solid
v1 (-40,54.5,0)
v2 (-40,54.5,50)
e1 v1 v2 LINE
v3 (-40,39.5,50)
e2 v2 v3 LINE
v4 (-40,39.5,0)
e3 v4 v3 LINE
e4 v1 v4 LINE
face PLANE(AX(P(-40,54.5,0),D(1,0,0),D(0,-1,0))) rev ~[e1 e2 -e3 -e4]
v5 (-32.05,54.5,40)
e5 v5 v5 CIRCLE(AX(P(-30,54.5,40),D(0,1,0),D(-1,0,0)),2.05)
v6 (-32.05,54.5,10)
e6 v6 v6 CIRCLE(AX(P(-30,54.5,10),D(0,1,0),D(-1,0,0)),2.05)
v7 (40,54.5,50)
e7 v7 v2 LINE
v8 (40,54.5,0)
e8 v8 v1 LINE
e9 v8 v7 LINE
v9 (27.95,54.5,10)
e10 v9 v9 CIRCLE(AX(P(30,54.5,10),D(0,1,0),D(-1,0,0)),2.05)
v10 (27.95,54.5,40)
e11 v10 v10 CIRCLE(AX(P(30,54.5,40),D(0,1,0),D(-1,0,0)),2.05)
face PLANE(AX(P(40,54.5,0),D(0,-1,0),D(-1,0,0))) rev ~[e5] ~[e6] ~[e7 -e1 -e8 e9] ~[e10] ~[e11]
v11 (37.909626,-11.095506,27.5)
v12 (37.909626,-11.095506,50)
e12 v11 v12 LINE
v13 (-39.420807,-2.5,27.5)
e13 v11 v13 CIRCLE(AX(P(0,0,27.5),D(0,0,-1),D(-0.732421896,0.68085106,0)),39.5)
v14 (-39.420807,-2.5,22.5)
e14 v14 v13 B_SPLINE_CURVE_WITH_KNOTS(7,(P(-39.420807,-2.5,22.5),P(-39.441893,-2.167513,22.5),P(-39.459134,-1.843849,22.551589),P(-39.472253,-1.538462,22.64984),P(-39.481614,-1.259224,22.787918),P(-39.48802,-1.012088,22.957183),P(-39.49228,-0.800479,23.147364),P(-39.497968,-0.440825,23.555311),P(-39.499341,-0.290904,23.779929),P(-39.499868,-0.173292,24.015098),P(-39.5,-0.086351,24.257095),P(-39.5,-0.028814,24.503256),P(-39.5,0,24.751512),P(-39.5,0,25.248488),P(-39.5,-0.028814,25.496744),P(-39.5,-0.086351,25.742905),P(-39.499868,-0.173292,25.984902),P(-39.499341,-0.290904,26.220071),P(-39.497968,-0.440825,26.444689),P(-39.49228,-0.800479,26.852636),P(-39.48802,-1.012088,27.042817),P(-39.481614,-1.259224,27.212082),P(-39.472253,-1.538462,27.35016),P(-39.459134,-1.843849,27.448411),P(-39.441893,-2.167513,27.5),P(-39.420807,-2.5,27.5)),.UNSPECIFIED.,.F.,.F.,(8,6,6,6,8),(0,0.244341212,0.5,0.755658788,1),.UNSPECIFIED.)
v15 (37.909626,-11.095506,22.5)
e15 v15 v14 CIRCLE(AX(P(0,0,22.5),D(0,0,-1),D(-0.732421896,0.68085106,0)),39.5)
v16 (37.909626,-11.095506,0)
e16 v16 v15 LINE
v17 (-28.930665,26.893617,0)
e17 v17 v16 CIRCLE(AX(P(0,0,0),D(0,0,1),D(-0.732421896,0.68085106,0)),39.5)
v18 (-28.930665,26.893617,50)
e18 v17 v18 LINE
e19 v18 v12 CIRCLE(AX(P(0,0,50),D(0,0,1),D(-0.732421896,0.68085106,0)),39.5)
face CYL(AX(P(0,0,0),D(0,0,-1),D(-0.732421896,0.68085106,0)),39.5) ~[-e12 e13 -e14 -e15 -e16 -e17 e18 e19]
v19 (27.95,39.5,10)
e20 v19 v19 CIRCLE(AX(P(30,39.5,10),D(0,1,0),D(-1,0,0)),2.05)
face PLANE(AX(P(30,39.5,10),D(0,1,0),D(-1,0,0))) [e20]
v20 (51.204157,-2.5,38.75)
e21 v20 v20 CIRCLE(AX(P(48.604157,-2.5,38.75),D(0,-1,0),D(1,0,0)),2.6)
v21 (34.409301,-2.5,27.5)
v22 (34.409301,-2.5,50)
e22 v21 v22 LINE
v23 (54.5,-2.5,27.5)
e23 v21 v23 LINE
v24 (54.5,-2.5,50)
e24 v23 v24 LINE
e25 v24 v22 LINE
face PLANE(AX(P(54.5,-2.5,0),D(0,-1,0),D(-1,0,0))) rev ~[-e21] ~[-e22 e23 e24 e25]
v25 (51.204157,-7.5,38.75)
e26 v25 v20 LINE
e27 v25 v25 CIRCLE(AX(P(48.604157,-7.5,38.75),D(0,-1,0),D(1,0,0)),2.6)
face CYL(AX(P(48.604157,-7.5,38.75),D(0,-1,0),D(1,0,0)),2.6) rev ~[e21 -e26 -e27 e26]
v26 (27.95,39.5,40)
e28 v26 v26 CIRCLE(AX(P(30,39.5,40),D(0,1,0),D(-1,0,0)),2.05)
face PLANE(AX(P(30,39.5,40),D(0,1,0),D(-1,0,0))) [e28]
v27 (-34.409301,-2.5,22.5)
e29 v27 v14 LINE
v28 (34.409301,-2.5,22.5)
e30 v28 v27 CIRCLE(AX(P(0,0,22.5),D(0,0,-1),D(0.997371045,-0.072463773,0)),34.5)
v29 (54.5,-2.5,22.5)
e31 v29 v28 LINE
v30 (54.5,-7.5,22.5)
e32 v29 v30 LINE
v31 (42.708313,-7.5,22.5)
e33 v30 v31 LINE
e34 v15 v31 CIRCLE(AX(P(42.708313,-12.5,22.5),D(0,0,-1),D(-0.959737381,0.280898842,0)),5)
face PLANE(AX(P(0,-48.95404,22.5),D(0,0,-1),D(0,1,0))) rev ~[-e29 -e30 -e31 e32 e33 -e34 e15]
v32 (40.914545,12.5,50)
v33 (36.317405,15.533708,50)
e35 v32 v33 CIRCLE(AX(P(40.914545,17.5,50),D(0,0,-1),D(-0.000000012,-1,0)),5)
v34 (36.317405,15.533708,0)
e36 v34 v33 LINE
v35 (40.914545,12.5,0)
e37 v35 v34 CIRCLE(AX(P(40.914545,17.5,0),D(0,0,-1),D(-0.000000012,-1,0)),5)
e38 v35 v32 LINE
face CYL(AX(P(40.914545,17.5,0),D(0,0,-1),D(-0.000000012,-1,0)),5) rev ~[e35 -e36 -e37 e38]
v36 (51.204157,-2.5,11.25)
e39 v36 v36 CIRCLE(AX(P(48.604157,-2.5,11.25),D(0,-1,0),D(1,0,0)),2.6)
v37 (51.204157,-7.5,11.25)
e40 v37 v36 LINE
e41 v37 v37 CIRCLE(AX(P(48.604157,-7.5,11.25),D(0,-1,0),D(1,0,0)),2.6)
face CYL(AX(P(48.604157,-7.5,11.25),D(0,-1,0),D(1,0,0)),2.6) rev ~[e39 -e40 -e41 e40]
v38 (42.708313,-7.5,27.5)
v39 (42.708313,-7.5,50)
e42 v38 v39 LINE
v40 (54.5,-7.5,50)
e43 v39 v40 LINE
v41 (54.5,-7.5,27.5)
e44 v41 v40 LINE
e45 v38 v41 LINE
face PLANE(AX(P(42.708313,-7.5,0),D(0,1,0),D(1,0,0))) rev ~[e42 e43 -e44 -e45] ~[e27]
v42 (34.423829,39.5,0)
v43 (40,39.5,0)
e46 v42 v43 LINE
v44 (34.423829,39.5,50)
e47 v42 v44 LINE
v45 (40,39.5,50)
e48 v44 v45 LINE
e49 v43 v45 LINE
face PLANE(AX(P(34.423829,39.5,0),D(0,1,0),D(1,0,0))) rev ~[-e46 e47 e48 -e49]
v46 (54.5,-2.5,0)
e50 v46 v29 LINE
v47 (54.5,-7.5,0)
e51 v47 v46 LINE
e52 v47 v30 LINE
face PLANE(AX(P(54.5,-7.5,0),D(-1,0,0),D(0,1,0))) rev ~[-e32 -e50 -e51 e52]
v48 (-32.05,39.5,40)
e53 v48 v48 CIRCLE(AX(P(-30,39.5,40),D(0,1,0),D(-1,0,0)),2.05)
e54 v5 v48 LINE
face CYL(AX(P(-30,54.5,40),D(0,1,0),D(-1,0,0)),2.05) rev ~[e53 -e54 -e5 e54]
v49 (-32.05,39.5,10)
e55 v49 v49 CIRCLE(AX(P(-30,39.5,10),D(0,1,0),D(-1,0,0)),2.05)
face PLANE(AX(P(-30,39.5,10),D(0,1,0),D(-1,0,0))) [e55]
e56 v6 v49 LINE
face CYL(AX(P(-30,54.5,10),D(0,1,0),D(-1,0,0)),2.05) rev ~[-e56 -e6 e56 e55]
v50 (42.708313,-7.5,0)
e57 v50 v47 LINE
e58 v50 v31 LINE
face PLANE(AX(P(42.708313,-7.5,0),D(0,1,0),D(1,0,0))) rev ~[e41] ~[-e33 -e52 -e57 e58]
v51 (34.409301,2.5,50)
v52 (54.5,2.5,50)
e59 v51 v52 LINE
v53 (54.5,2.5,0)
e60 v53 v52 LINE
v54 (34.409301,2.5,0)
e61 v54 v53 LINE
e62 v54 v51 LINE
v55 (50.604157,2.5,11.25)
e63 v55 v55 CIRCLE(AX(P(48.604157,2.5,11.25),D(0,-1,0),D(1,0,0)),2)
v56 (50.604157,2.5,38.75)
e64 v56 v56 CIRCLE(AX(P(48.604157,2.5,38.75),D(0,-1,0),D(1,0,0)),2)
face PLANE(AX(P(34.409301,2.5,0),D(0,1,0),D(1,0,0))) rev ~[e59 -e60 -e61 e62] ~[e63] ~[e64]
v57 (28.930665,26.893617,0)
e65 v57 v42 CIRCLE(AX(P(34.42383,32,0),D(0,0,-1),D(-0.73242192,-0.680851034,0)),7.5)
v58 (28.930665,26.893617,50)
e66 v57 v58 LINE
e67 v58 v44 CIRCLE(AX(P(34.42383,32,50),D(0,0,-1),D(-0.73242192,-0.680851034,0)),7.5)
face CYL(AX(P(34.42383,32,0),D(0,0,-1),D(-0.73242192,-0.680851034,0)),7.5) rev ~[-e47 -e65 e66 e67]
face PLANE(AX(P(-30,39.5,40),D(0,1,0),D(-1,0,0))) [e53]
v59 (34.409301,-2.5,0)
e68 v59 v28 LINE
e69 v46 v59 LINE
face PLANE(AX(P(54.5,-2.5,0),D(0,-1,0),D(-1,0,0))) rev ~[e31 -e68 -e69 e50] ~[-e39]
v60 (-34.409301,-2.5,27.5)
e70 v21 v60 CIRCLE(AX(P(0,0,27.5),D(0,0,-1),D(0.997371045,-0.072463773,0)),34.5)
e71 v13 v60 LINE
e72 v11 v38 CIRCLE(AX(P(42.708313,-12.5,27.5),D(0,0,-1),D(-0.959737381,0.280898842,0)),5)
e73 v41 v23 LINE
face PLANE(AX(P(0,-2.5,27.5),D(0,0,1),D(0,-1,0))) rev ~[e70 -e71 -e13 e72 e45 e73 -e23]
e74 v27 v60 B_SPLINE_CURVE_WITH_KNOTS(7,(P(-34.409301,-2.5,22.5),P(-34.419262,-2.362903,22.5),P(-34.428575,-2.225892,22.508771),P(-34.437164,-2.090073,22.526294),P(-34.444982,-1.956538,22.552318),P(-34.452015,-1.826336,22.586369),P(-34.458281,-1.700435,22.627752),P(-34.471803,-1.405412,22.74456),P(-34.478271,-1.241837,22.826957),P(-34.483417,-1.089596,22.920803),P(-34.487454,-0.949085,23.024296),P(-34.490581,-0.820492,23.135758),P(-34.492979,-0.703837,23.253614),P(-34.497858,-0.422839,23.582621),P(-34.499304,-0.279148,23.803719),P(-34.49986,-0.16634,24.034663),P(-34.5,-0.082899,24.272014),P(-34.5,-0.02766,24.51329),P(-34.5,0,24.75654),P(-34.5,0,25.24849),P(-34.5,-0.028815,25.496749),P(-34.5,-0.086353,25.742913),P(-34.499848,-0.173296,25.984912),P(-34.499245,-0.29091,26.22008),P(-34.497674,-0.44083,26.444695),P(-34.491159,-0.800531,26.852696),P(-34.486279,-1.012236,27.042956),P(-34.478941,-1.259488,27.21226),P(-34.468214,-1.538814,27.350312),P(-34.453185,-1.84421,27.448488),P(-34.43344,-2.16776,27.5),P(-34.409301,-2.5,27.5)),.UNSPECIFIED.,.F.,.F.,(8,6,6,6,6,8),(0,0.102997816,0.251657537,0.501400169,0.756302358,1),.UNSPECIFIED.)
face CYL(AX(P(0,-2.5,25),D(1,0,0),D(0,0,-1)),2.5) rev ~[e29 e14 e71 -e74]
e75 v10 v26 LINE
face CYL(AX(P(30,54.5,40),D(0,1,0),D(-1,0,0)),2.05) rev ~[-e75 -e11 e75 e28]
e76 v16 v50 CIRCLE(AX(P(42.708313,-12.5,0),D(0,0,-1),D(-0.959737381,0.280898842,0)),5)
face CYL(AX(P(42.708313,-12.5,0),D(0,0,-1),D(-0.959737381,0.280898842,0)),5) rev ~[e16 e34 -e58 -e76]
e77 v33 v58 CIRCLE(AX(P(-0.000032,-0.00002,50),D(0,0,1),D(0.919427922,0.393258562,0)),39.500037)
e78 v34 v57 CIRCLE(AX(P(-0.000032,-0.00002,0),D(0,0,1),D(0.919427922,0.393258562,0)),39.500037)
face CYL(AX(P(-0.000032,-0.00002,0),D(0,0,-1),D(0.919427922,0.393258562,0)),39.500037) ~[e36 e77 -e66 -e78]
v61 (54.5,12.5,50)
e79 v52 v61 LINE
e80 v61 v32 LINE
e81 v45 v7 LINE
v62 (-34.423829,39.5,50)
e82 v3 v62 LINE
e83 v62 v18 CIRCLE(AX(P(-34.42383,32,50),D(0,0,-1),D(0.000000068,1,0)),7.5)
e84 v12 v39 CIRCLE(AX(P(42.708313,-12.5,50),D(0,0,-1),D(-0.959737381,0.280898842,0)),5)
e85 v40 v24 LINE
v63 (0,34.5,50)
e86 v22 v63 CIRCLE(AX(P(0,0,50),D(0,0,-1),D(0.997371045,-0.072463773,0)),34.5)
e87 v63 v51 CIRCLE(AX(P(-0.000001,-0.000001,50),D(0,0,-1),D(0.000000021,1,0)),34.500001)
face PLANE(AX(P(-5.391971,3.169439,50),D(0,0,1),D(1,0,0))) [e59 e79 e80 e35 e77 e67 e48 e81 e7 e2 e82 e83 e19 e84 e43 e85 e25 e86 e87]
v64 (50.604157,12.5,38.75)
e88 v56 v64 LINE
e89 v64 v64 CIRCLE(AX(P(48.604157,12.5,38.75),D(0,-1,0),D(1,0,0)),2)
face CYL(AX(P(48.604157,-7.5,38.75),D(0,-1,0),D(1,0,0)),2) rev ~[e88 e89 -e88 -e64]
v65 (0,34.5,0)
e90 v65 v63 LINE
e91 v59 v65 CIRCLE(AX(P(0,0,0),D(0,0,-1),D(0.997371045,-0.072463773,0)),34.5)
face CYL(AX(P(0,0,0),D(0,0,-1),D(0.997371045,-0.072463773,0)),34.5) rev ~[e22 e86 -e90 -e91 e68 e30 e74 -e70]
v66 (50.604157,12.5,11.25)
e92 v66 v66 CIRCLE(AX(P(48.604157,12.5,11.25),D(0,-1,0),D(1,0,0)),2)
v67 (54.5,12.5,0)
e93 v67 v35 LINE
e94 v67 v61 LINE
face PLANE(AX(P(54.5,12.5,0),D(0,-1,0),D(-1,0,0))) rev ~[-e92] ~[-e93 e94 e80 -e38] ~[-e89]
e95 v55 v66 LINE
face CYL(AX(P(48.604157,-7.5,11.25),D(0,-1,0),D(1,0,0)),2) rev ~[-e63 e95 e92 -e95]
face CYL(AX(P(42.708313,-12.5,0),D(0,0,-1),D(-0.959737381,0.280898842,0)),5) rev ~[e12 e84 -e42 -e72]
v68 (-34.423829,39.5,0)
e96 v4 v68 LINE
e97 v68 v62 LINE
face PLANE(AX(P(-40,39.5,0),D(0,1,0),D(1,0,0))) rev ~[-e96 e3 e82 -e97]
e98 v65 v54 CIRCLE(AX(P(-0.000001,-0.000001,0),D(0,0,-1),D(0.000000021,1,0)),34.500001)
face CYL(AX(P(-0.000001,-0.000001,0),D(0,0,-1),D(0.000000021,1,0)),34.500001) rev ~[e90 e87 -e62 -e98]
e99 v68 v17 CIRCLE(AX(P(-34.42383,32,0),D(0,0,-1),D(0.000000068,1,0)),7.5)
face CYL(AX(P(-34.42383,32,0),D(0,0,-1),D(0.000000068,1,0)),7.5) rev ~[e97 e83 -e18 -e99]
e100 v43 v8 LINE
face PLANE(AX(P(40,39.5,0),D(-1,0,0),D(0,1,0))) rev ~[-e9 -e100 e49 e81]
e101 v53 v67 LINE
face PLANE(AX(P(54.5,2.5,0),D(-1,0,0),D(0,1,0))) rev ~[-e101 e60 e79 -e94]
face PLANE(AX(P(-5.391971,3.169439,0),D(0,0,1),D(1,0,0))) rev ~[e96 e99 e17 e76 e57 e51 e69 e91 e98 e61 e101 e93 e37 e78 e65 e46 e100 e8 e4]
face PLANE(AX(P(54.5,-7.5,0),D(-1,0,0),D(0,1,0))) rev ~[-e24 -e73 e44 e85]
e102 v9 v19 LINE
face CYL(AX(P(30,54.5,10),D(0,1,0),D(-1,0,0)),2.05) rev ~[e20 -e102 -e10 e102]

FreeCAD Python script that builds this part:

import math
import FreeCAD as App
import Part
import Sketcher
Q = App.Units.Quantity

doc = App.newDocument("Part")
body = doc.addObject("PartDesign::Body", "Body")

# Sketch on XY plane
sketch1 = body.newObject("Sketcher::SketchObject", "Sketch")
sketch1.AttachmentSupport = (doc.getObject("XY_Plane"), [""])
sketch1.MapMode = "FlatFace"
sketch1.addGeometry(Part.ArcOfCircle(Part.Circle(App.Vector(0, 0, 0), App.Vector(0, 0, 1), 34), math.radians(90), math.radians(356)), False)
sketch1.addGeometry(Part.ArcOfCircle(Part.Circle(App.Vector(0, 0, 0), App.Vector(0, 0, 1), 35), math.radians(4), math.radians(90)), False)
sketch1.addGeometry(Part.LineSegment(App.Vector(34, 2, 0), App.Vector(54, 2, 0)), False)
sketch1.addGeometry(Part.LineSegment(App.Vector(54, 2, 0), App.Vector(54, 12, 0)), False)
sketch1.addGeometry(Part.LineSegment(App.Vector(54, 12, 0), App.Vector(41, 12, 0)), False)
sketch1.addGeometry(Part.ArcOfCircle(Part.Circle(App.Vector(41, 18, 0), App.Vector(0, 0, 1), 5), math.radians(-157), math.radians(-90)), False)
sketch1.addGeometry(Part.ArcOfCircle(Part.Circle(App.Vector(0, 0, 0), App.Vector(0, 0, 1), 40), math.radians(23.16), math.radians(42.91)), False)
sketch1.addGeometry(Part.ArcOfCircle(Part.Circle(App.Vector(34, 32, 0), App.Vector(0, 0, 1), 8), math.radians(90), math.radians(223)), False)
sketch1.addGeometry(Part.LineSegment(App.Vector(34, 40, 0), App.Vector(40, 40, 0)), False)
sketch1.addGeometry(Part.LineSegment(App.Vector(40, 40, 0), App.Vector(40, 54, 0)), False)
sketch1.addGeometry(Part.LineSegment(App.Vector(40, 54, 0), App.Vector(-40, 54, 0)), False)
sketch1.addGeometry(Part.LineSegment(App.Vector(-40, 54, 0), App.Vector(-40, 40, 0)), False)
sketch1.addGeometry(Part.LineSegment(App.Vector(-40, 40, 0), App.Vector(-34, 40, 0)), False)
sketch1.addGeometry(Part.ArcOfCircle(Part.Circle(App.Vector(-34, 32, 0), App.Vector(0, 0, 1), 8), math.radians(-43), math.radians(90)), False)
sketch1.addGeometry(Part.ArcOfCircle(Part.Circle(App.Vector(0, 0, 0), App.Vector(0, 0, 1), 40), math.radians(137), math.radians(344)), False)
sketch1.addGeometry(Part.ArcOfCircle(Part.Circle(App.Vector(43, -13, 0), App.Vector(0, 0, 1), 5), math.radians(90), math.radians(164)), False)
sketch1.addGeometry(Part.LineSegment(App.Vector(43, -8, 0), App.Vector(54, -8, 0)), False)
sketch1.addGeometry(Part.LineSegment(App.Vector(54, -8, 0), App.Vector(54, -2, 0)), False)
sketch1.addGeometry(Part.LineSegment(App.Vector(54, -2, 0), App.Vector(34, -2, 0)), False)
sketch1.addConstraint(Sketcher.Constraint("Tangent", 0, 1, 1, 2))
sketch1.addConstraint(Sketcher.Constraint("Coincident", 1, 1, 2, 1))
sketch1.addConstraint(Sketcher.Constraint("Coincident", 2, 2, 3, 1))
sketch1.addConstraint(Sketcher.Constraint("Coincident", 3, 2, 4, 1))
sketch1.addConstraint(Sketcher.Constraint("Tangent", 4, 2, 5, 2))
sketch1.addConstraint(Sketcher.Constraint("Tangent", 5, 1, 6, 1))
sketch1.addConstraint(Sketcher.Constraint("Tangent", 6, 2, 7, 2))
sketch1.addConstraint(Sketcher.Constraint("Tangent", 7, 1, 8, 1))
sketch1.addConstraint(Sketcher.Constraint("Coincident", 8, 2, 9, 1))
sketch1.addConstraint(Sketcher.Constraint("Coincident", 9, 2, 10, 1))
sketch1.addConstraint(Sketcher.Constraint("Coincident", 10, 2, 11, 1))
sketch1.addConstraint(Sketcher.Constraint("Coincident", 11, 2, 12, 1))
sketch1.addConstraint(Sketcher.Constraint("Tangent", 12, 2, 13, 2))
sketch1.addConstraint(Sketcher.Constraint("Tangent", 13, 1, 14, 1))
sketch1.addConstraint(Sketcher.Constraint("Tangent", 14, 2, 15, 2))
sketch1.addConstraint(Sketcher.Constraint("Tangent", 15, 1, 16, 1))
sketch1.addConstraint(Sketcher.Constraint("Coincident", 16, 2, 17, 1))
sketch1.addConstraint(Sketcher.Constraint("Coincident", 17, 2, 18, 1))
sketch1.addConstraint(Sketcher.Constraint("Coincident", 18, 2, 0, 2))
sketch1.addConstraint(Sketcher.Constraint("Horizontal", 2))
sketch1.addConstraint(Sketcher.Constraint("Vertical", 3))
sketch1.addConstraint(Sketcher.Constraint("Horizontal", 4))
sketch1.addConstraint(Sketcher.Constraint("Horizontal", 8))
sketch1.addConstraint(Sketcher.Constraint("Vertical", 9))
sketch1.addConstraint(Sketcher.Constraint("Horizontal", 10))
sketch1.addConstraint(Sketcher.Constraint("Vertical", 11))
sketch1.addConstraint(Sketcher.Constraint("Horizontal", 12))
sketch1.addConstraint(Sketcher.Constraint("Horizontal", 16))
sketch1.addConstraint(Sketcher.Constraint("Vertical", 17))
sketch1.addConstraint(Sketcher.Constraint("Horizontal", 18))
sketch1.addConstraint(Sketcher.Constraint("Coincident", 0, 3, -1, 1))
sketch1.addConstraint(Sketcher.Constraint("Coincident", 14, 3, -1, 1))
sketch1.addConstraint(Sketcher.Constraint("Equal", 0, 1))
sketch1.addConstraint(Sketcher.Constraint("Equal", 7, 13))
sketch1.addConstraint(Sketcher.Constraint("Equal", 5, 15))
sketch1.addConstraint(Sketcher.Constraint("Symmetric", 7, 3, 13, 3, -2))
sketch1.addConstraint(Sketcher.Constraint("Symmetric", 2, 2, 17, 2, -1))
sketch1.addConstraint(Sketcher.Constraint("PointOnObject", 0, 1, -2))
sketch1.addConstraint(Sketcher.Constraint("Horizontal", 6, 2, 13, 1))
sketch1.addConstraint(Sketcher.Constraint("Equal", 8, 12))
sketch1.addConstraint(Sketcher.Constraint("Radius", 5, Q("5 mm")))
sketch1.addConstraint(Sketcher.Constraint("Radius", 0, Q("34.5 mm")))
sketch1.addConstraint(Sketcher.Constraint("Radius", 7, Q("7.5 mm")))
sketch1.addConstraint(Sketcher.Constraint("Radius", 14, Q("39.5 mm")))
sketch1.addConstraint(Sketcher.Constraint("DistanceX", 10, 2, 10, 1, Q("80 mm")))
sketch1.addConstraint(Sketcher.Constraint("DistanceY", 3, 1, 3, 2, Q("10 mm")))
sketch1.addConstraint(Sketcher.Constraint("DistanceY", 9, 1, 9, 2, Q("15 mm")))
sketch1.addConstraint(Sketcher.Constraint("DistanceY", 17, 1, 17, 2, Q("5 mm")))
sketch1.addConstraint(Sketcher.Constraint("DistanceY", -1, 1, 7, 3, Q("32 mm")))
sketch1.addConstraint(Sketcher.Constraint("DistanceY", 15, 3, 5, 3, Q("30 mm")))
sketch1.addConstraint(Sketcher.Constraint("DistanceX", -1, 1, 2, 2, Q("54.5 mm")))
sketch1.addConstraint(Sketcher.Constraint("Radius", 6, Q("39.500037 mm")))
pad1 = body.newObject("PartDesign::Pad", "Pad")
pad1.Profile = sketch1
pad1.Length = 50

# Sketch on XZ plane
sketch2 = body.newObject("Sketcher::SketchObject", "Sketch001")
sketch2.AttachmentSupport = (doc.getObject("XZ_Plane"), [""])
sketch2.MapMode = "FlatFace"
sketch2.AttachmentOffset = App.Placement(App.Vector(0, 0, -54.5), App.Rotation())
sketch2.addGeometry(Part.Circle(App.Vector(30, 10, 0), App.Vector(0, 0, 1), 2), False)
sketch2.addGeometry(Part.Circle(App.Vector(30, 40, 0), App.Vector(0, 0, 1), 2), False)
sketch2.addGeometry(Part.Circle(App.Vector(-30, 40, 0), App.Vector(0, 0, 1), 2), False)
sketch2.addGeometry(Part.Circle(App.Vector(-30, 10, 0), App.Vector(0, 0, 1), 2), False)
sketch2.addConstraint(Sketcher.Constraint("Equal", 0, 1))
sketch2.addConstraint(Sketcher.Constraint("Equal", 1, 2))
sketch2.addConstraint(Sketcher.Constraint("Equal", 2, 3))
sketch2.addConstraint(Sketcher.Constraint("Symmetric", 1, 3, 2, 3, -2))
sketch2.addConstraint(Sketcher.Constraint("Symmetric", 0, 3, 3, 3, -2))
sketch2.addConstraint(Sketcher.Constraint("Vertical", 0, 3, 1, 3))
sketch2.addConstraint(Sketcher.Constraint("Diameter", 0, Q("4.1 mm")))
sketch2.addConstraint(Sketcher.Constraint("DistanceX", -1, 1, 0, 3, Q("30 mm")))
sketch2.addConstraint(Sketcher.Constraint("DistanceY", -1, 1, 0, 3, Q("10 mm")))
sketch2.addConstraint(Sketcher.Constraint("DistanceY", -1, 1, 1, 3, Q("40 mm")))
pocket1 = body.newObject("PartDesign::Pocket", "Pocket")
pocket1.Profile = sketch2
pocket1.Length = 15
pocket1.Reversed = True

# Sketch on XZ plane
sketch3 = body.newObject("Sketcher::SketchObject", "Sketch002")
sketch3.AttachmentSupport = (doc.getObject("XZ_Plane"), [""])
sketch3.MapMode = "FlatFace"
sketch3.AttachmentOffset = App.Placement(App.Vector(0, 0, 7.5), App.Rotation())
sketch3.addGeometry(Part.Circle(App.Vector(48.6, 11.2, 0), App.Vector(0, 0, 1), 2), False)
sketch3.addGeometry(Part.Circle(App.Vector(48.6, 38.8, 0), App.Vector(0, 0, 1), 2), False)
sketch3.addConstraint(Sketcher.Constraint("Equal", 0, 1))
sketch3.addConstraint(Sketcher.Constraint("Vertical", 0, 3, 1, 3))
sketch3.addConstraint(Sketcher.Constraint("Diameter", 0, Q("4 mm")))
sketch3.addConstraint(Sketcher.Constraint("DistanceY", 0, 3, 1, 3, Q("27.5 mm")))
sketch3.addConstraint(Sketcher.Constraint("DistanceY", -1, 1, 0, 3, Q("11.25 mm")))
sketch3.addConstraint(Sketcher.Constraint("DistanceX", -1, 1, 0, 3, Q("48.604157 mm")))
pocket2 = body.newObject("PartDesign::Pocket", "Pocket001")
pocket2.Profile = sketch3
pocket2.Type = "ThroughAll"

# Sketch on XZ plane
sketch4 = body.newObject("Sketcher::SketchObject", "Sketch003")
sketch4.AttachmentSupport = (doc.getObject("XZ_Plane"), [""])
sketch4.MapMode = "FlatFace"
sketch4.AttachmentOffset = App.Placement(App.Vector(0, 0, 7.5), App.Rotation())
sketch4.addGeometry(Part.Circle(App.Vector(48.6, 11.2, 0), App.Vector(0, 0, 1), 2.6), False)
sketch4.addGeometry(Part.Circle(App.Vector(48.6, 11.2, 0), App.Vector(0, 0, 1), 2), False)
sketch4.addGeometry(Part.Circle(App.Vector(48.6, 38.8, 0), App.Vector(0, 0, 1), 2.6), False)
sketch4.addGeometry(Part.Circle(App.Vector(48.6, 38.8, 0), App.Vector(0, 0, 1), 2), False)
sketch4.addConstraint(Sketcher.Constraint("Coincident", 1, 3, 0, 3))
sketch4.addConstraint(Sketcher.Constraint("Coincident", 3, 3, 2, 3))
sketch4.addConstraint(Sketcher.Constraint("Equal", 0, 2))
sketch4.addConstraint(Sketcher.Constraint("Equal", 1, 3))
sketch4.addConstraint(Sketcher.Constraint("Vertical", 1, 3, 2, 3))
sketch4.addConstraint(Sketcher.Constraint("Diameter", 1, Q("4 mm")))
sketch4.addConstraint(Sketcher.Constraint("Diameter", 0, Q("5.2 mm")))
sketch4.addConstraint(Sketcher.Constraint("DistanceY", 0, 3, 2, 3, Q("27.5 mm")))
sketch4.addConstraint(Sketcher.Constraint("DistanceY", -1, 1, 0, 3, Q("11.25 mm")))
sketch4.addConstraint(Sketcher.Constraint("DistanceX", -1, 1, 0, 3, Q("48.604157 mm")))
pocket3 = body.newObject("PartDesign::Pocket", "Pocket002")
pocket3.Profile = sketch4
pocket3.Length = 5

# Sketch on YZ plane
sketch5 = body.newObject("Sketcher::SketchObject", "Sketch004")
sketch5.AttachmentSupport = (doc.getObject("YZ_Plane"), [""])
sketch5.MapMode = "FlatFace"
sketch5.addGeometry(Part.ArcOfCircle(Part.Circle(App.Vector(-2.5, 25, 0), App.Vector(0, 0, 1), 2.5), math.radians(-90), math.radians(90)), False)
sketch5.addGeometry(Part.LineSegment(App.Vector(-2.5, 27.5, 0), App.Vector(-49, 27.5, 0)), False)
sketch5.addGeometry(Part.ArcOfCircle(Part.Circle(App.Vector(-49, 25, 0), App.Vector(0, 0, 1), 2.5), math.radians(90), math.radians(270)), False)
sketch5.addGeometry(Part.LineSegment(App.Vector(-49, 22.5, 0), App.Vector(-2.5, 22.5, 0)), False)
sketch5.addConstraint(Sketcher.Constraint("Tangent", 0, 2, 1, 1))
sketch5.addConstraint(Sketcher.Constraint("Tangent", 1, 2, 2, 1))
sketch5.addConstraint(Sketcher.Constraint("Tangent", 2, 2, 3, 1))
sketch5.addConstraint(Sketcher.Constraint("Tangent", 3, 2, 0, 1))
sketch5.addConstraint(Sketcher.Constraint("Horizontal", 1))
sketch5.addConstraint(Sketcher.Constraint("Horizontal", 3))
sketch5.addConstraint(Sketcher.Constraint("Radius", 0, Q("2.5 mm")))
sketch5.addConstraint(Sketcher.Constraint("DistanceY", -1, 1, 0, 3, Q("25 mm")))
sketch5.addConstraint(Sketcher.Constraint("DistanceX", 0, 3, -1, 1, Q("2.5 mm")))
sketch5.addConstraint(Sketcher.Constraint("DistanceX", 1, 2, 1, 1, Q("46.45404 mm")))
pocket4 = body.newObject("PartDesign::Pocket", "Pocket003")
pocket4.Profile = sketch5
pocket4.Length = 200
pocket4.Midplane = True

doc.recompute()
